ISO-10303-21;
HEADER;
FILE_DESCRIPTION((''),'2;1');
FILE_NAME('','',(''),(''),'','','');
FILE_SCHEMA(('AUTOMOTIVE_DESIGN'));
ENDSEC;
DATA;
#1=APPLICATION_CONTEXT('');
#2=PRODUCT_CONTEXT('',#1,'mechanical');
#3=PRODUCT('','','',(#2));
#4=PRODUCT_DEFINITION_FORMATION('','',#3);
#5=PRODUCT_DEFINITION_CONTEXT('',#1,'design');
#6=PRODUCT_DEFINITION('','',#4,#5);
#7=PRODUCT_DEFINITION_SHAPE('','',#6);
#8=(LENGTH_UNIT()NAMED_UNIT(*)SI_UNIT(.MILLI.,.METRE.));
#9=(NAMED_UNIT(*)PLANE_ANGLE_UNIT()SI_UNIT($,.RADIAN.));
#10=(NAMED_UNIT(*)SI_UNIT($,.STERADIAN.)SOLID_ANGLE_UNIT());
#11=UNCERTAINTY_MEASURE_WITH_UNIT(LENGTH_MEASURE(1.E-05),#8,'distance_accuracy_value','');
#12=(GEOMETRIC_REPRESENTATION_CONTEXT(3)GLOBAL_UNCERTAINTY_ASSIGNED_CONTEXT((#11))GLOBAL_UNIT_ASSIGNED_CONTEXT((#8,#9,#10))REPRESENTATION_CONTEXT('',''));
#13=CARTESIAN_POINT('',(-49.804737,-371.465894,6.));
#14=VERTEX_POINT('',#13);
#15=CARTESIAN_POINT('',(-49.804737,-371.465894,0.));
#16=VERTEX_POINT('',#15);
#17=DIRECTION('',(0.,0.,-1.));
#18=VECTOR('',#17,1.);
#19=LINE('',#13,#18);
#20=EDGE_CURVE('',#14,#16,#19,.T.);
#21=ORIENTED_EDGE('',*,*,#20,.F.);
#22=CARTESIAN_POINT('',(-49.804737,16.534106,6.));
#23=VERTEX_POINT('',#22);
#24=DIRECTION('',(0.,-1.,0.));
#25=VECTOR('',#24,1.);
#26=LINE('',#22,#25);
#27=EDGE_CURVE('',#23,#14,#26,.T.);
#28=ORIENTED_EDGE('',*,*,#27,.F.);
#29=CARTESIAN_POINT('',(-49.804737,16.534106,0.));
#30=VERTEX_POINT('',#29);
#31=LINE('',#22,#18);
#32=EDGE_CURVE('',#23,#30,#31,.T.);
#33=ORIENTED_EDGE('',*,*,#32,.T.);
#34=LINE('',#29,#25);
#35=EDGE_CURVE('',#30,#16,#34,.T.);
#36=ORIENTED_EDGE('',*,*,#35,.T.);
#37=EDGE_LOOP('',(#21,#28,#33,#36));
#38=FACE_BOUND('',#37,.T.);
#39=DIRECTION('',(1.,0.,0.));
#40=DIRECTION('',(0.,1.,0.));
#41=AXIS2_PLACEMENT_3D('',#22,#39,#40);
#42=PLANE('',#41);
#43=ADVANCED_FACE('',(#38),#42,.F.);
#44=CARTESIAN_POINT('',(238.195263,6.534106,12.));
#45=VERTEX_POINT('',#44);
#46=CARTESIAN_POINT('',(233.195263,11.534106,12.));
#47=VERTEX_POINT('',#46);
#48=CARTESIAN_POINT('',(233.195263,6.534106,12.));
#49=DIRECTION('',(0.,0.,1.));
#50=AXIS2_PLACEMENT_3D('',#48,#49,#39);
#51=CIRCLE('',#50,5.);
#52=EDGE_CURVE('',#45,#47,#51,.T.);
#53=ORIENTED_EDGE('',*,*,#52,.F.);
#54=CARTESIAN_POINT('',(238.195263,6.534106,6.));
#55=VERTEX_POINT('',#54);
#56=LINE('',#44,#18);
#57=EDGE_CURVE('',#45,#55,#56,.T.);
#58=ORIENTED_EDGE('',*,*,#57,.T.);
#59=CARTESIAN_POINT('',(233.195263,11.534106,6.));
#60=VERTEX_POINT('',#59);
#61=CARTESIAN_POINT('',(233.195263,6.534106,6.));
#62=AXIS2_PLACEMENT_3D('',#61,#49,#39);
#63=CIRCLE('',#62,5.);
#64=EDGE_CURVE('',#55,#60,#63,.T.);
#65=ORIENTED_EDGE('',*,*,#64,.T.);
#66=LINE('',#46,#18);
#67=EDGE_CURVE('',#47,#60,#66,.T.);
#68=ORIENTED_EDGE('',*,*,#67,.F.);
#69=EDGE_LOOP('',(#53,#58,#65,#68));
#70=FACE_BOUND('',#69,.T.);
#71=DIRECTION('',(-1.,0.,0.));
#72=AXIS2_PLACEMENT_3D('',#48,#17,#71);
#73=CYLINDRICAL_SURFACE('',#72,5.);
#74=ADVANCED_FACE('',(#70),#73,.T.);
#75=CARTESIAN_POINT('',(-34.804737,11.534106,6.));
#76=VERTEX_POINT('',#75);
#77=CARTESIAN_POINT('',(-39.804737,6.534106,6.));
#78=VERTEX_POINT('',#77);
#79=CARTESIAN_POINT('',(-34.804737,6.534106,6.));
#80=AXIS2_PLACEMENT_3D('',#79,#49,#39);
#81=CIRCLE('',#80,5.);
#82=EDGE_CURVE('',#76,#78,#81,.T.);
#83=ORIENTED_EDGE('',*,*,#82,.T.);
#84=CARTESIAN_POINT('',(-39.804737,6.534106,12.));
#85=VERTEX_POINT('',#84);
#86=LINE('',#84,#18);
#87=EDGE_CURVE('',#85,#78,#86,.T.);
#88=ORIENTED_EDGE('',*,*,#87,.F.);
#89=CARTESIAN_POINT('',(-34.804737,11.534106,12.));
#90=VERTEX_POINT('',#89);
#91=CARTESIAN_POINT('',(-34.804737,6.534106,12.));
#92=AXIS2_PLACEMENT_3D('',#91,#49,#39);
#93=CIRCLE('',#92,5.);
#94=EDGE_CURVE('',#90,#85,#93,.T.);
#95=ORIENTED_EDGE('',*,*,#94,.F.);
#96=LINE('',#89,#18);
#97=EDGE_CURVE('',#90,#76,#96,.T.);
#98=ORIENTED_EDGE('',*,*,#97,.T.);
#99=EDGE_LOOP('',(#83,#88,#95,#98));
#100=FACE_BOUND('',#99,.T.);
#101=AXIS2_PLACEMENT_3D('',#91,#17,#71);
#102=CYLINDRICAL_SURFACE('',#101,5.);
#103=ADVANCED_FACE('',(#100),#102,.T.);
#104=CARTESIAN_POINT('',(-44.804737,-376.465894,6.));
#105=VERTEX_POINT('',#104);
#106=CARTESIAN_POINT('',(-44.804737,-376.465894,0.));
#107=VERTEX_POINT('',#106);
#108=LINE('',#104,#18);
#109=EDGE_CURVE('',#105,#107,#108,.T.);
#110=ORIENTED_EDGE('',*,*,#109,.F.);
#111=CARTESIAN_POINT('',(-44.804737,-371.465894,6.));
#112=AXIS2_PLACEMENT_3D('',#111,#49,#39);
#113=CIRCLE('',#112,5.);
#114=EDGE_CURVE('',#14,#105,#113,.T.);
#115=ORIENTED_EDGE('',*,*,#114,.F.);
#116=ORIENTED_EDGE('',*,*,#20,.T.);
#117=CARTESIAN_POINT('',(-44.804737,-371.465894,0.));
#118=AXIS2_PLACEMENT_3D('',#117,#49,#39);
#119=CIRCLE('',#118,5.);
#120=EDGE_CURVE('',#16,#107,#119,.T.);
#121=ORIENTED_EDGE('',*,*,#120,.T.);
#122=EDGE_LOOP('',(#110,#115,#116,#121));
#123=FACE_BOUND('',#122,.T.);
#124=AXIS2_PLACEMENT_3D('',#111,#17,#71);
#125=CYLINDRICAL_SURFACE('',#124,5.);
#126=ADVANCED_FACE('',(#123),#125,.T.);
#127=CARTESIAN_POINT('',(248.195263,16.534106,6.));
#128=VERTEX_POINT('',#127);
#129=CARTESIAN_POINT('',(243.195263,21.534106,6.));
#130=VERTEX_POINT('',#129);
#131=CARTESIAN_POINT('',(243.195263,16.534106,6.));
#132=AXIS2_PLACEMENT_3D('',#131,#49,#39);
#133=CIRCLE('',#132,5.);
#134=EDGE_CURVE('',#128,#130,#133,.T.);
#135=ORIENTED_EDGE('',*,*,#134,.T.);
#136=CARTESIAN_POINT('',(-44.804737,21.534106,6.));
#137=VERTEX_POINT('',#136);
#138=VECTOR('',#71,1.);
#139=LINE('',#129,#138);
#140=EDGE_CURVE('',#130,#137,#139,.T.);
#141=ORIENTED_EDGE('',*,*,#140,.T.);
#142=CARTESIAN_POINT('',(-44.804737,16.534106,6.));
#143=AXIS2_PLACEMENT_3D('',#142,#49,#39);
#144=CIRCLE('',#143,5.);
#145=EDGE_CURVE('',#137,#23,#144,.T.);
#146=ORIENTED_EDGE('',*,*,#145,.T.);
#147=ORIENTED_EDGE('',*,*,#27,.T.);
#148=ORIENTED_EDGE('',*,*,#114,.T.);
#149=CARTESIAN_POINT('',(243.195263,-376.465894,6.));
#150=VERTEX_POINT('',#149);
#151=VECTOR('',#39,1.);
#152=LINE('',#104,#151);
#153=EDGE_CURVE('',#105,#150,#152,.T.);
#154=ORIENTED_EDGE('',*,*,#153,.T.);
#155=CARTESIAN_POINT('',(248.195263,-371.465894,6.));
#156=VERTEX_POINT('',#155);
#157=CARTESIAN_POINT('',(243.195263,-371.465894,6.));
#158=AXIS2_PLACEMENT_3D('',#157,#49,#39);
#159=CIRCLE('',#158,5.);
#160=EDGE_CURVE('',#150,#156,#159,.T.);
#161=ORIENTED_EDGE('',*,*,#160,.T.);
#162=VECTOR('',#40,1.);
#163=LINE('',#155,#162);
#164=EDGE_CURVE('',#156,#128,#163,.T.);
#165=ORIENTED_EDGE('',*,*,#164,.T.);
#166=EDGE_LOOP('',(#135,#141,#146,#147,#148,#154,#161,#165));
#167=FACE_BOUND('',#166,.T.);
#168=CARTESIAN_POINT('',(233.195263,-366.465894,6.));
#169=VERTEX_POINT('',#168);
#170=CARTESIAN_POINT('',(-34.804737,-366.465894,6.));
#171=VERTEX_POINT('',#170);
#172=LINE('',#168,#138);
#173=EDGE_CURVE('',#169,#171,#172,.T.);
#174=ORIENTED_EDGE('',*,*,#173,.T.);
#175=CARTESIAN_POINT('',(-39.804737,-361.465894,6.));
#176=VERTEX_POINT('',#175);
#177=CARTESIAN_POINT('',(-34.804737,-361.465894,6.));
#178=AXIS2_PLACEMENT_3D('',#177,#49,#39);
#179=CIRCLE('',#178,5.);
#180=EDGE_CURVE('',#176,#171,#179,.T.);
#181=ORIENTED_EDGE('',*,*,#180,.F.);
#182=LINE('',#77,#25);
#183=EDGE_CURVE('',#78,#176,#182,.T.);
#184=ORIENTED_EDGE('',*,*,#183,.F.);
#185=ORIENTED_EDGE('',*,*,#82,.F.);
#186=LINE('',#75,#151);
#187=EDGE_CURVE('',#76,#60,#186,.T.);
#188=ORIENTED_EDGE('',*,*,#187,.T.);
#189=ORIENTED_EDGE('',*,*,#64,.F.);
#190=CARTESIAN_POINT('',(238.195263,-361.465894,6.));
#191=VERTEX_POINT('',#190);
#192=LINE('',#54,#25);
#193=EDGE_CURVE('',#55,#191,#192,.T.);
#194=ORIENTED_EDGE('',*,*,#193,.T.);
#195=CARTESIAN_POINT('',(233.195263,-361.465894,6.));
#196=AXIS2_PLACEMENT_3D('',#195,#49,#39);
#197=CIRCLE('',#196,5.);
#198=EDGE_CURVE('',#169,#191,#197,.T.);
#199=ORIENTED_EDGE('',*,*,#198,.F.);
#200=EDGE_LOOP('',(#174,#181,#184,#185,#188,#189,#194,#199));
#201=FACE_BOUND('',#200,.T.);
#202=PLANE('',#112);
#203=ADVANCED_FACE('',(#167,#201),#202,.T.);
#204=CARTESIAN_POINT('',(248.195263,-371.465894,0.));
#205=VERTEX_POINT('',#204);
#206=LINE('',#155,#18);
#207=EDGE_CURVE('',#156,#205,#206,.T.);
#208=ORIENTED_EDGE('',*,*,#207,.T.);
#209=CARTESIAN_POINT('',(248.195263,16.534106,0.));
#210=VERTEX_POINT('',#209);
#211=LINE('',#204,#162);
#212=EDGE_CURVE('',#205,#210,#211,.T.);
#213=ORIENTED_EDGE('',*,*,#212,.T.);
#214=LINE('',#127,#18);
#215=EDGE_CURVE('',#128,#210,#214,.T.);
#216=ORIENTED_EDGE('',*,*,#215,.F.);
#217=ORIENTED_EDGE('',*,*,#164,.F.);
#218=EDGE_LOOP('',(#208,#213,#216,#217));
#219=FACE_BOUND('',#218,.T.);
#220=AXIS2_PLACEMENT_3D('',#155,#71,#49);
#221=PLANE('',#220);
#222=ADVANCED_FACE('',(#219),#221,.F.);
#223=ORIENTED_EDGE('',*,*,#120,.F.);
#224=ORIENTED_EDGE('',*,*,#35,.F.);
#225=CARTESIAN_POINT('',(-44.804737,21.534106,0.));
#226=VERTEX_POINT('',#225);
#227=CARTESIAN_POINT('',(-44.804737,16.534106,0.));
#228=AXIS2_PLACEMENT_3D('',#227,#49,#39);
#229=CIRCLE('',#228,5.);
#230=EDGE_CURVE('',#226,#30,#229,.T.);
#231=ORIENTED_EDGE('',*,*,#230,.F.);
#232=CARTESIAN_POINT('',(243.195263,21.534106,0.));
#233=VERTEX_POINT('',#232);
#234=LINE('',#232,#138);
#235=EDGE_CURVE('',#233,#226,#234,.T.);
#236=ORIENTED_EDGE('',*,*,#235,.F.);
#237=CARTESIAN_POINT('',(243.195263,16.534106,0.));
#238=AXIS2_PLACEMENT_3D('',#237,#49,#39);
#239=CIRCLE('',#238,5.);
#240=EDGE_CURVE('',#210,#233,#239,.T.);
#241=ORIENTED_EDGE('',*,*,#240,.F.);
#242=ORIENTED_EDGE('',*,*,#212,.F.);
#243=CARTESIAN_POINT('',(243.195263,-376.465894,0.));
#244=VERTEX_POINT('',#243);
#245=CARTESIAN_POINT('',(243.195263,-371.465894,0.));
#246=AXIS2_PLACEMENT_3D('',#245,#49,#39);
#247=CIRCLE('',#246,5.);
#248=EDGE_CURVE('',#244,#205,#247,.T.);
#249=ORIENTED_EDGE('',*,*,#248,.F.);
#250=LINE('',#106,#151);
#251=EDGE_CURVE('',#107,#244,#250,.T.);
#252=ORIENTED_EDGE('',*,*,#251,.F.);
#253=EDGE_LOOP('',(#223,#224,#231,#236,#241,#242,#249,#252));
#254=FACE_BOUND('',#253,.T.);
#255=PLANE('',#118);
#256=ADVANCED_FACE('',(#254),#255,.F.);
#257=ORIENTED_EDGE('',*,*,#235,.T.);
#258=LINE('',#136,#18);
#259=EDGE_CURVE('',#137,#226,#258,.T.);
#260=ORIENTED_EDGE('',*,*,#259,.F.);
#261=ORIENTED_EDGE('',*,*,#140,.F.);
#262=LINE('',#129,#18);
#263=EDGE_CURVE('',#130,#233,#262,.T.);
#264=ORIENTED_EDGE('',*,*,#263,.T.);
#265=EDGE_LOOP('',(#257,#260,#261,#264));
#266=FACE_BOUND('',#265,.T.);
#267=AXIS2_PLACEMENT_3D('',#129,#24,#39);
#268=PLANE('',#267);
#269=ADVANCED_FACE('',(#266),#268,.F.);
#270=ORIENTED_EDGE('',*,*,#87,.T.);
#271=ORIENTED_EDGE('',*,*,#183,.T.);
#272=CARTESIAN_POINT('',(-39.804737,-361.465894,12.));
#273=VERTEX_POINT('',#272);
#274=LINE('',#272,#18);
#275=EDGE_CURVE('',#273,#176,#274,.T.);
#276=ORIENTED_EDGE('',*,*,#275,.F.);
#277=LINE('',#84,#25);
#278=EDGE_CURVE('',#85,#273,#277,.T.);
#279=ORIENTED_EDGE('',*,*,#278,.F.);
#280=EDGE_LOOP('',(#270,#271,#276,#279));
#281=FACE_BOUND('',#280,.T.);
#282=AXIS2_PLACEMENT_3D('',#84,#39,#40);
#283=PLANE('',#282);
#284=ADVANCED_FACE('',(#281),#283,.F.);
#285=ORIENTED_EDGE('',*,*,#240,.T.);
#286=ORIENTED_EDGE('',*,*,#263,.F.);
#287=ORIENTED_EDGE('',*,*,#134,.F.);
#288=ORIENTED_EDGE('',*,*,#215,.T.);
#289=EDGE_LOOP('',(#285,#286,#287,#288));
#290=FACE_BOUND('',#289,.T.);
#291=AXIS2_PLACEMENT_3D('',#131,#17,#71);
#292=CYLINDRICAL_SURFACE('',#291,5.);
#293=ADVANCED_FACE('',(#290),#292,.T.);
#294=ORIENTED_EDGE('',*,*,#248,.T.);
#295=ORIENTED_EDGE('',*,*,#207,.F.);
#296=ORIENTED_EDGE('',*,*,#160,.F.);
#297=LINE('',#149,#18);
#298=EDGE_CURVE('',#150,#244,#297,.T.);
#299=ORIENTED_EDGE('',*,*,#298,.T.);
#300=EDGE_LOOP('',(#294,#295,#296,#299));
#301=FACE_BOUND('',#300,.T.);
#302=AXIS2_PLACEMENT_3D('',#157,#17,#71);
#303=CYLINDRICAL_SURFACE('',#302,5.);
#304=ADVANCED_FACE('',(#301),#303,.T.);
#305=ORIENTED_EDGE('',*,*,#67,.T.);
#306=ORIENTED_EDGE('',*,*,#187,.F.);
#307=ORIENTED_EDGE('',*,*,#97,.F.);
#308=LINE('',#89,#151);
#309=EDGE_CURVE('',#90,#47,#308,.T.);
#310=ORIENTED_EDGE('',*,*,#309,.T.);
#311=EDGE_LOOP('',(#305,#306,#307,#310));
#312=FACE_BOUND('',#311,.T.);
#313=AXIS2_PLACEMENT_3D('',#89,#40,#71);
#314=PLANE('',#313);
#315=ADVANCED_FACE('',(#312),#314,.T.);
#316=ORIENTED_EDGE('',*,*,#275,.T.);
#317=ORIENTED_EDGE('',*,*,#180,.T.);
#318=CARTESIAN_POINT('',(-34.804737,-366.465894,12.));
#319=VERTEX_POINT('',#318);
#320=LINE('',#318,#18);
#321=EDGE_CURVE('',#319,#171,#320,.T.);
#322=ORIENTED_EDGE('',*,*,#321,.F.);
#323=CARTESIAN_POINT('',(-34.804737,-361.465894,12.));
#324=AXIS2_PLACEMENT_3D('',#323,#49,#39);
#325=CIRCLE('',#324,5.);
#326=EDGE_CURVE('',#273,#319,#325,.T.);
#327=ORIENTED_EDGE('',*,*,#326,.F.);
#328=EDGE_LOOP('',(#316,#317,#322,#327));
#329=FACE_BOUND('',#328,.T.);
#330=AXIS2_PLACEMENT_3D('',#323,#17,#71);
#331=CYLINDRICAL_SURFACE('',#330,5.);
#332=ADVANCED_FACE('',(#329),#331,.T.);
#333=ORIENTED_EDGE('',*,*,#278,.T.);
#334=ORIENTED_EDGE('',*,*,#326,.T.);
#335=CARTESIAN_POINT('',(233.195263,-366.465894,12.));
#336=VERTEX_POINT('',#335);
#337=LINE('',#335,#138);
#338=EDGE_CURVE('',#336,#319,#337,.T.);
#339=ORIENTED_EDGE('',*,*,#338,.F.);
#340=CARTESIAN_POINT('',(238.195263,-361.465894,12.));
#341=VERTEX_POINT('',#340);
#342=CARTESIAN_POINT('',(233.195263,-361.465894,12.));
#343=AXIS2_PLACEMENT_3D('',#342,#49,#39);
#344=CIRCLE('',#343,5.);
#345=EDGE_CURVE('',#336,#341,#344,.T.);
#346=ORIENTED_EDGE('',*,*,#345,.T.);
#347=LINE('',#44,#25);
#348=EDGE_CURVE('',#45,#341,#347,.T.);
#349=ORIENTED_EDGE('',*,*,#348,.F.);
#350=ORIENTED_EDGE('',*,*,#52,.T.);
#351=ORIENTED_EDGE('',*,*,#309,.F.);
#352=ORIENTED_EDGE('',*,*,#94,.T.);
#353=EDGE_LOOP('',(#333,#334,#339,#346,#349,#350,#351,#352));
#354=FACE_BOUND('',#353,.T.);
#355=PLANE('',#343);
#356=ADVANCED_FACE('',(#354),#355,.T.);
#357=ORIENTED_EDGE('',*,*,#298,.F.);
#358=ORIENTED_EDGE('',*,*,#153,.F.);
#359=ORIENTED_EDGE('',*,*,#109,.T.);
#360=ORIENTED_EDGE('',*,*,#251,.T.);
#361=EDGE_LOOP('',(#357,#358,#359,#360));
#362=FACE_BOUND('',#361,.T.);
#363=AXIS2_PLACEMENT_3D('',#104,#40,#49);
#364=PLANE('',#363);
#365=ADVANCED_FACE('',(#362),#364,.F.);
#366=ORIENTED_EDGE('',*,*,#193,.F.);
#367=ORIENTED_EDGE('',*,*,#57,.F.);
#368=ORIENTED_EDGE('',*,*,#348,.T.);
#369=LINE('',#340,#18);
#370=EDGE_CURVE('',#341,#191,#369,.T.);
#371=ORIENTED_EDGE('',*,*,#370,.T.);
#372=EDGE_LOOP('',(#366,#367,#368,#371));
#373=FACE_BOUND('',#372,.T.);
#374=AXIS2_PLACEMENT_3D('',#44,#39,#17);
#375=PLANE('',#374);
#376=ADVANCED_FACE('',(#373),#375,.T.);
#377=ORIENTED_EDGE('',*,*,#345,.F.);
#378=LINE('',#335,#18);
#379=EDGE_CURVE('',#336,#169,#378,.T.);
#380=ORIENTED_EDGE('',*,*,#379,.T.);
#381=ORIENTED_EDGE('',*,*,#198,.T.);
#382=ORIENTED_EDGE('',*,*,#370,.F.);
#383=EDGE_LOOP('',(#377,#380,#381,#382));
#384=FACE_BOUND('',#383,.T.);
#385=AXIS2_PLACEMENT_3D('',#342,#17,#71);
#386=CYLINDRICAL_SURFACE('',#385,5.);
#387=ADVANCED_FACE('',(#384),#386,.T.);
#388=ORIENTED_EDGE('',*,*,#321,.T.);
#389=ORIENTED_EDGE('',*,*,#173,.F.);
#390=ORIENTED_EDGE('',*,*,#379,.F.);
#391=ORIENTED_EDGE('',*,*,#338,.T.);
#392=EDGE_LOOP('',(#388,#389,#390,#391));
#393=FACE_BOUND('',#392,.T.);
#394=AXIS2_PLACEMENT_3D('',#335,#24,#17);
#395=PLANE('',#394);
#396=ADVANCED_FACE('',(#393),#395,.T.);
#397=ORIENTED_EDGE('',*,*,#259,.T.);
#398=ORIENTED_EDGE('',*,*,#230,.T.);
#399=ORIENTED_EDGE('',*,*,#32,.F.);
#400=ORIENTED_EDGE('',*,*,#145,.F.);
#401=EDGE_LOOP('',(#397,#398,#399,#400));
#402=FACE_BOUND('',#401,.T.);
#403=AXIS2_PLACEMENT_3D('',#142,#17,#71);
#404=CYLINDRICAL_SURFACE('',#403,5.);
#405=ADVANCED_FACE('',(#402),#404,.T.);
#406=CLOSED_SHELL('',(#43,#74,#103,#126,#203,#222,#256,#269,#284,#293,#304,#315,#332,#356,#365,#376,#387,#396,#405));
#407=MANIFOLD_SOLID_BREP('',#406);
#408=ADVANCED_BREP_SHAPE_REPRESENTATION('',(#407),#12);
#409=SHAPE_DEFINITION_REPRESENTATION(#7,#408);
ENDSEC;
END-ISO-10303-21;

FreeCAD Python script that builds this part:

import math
import FreeCAD as App
import Part
import Sketcher

doc = App.newDocument("Part")
body = doc.addObject("PartDesign::Body", "Body")

# Sketch on XY plane
sketch1 = doc.addObject("Sketcher::SketchObject", "Sketch")
body.addObject(sketch1)
sketch1.AttachmentSupport = (doc.XY_Plane, [""])
sketch1.MapMode = "FlatFace"
sketch1.addGeometry([
    Part.LineSegment(App.Vector(-50, 17, 0), App.Vector(-50, -371, 0)),  # 0
    Part.ArcOfCircle(Part.Circle(App.Vector(-45, -371, 0), App.Vector(0, 0, 1), 5), math.radians(180), math.radians(270)),  # 1
    Part.LineSegment(App.Vector(-45, -376, 0), App.Vector(243, -376, 0)),  # 2
    Part.ArcOfCircle(Part.Circle(App.Vector(243, -371, 0), App.Vector(0, 0, 1), 5), math.radians(-90), math.radians(0)),  # 3
    Part.LineSegment(App.Vector(248, -371, 0), App.Vector(248, 17, 0)),  # 4
    Part.ArcOfCircle(Part.Circle(App.Vector(243, 17, 0), App.Vector(0, 0, 1), 5), math.radians(0), math.radians(90)),  # 5
    Part.LineSegment(App.Vector(243, 22, 0), App.Vector(-45, 22, 0)),  # 6
    Part.ArcOfCircle(Part.Circle(App.Vector(-45, 17, 0), App.Vector(0, 0, 1), 5), math.radians(90), math.radians(180)),  # 7
], False)
sketch1.addConstraint([
    Sketcher.Constraint("Tangent", 0, 2, 1, 1),
    Sketcher.Constraint("Tangent", 1, 2, 2, 1),
    Sketcher.Constraint("Tangent", 2, 2, 3, 1),
    Sketcher.Constraint("Tangent", 3, 2, 4, 1),
    Sketcher.Constraint("Tangent", 4, 2, 5, 1),
    Sketcher.Constraint("Tangent", 5, 2, 6, 1),
    Sketcher.Constraint("Tangent", 6, 2, 7, 1),
    Sketcher.Constraint("Tangent", 7, 2, 0, 1),
    Sketcher.Constraint("Vertical", 0),
    Sketcher.Constraint("Horizontal", 2),
    Sketcher.Constraint("Vertical", 4),
    Sketcher.Constraint("Horizontal", 6),
    Sketcher.Constraint("Equal", 1, 3),
    Sketcher.Constraint("Equal", 3, 5),
    Sketcher.Constraint("Equal", 5, 7),
    Sketcher.Constraint("Radius", 1, 5.0),
    Sketcher.Constraint("DistanceX", 2, 1, 2, 2, 288.0),
    Sketcher.Constraint("DistanceY", 0, 2, 0, 1, 388.0),
    Sketcher.Constraint("DistanceX", 1, 3, -1, 1, 44.804737),
    Sketcher.Constraint("DistanceY", 1, 3, -1, 1, 371.465894),
])
pad1 = doc.addObject("PartDesign::Pad", "Pad")
body.addObject(pad1)
pad1.Profile = sketch1
pad1.Length = 6

# Sketch on XY plane
sketch2 = doc.addObject("Sketcher::SketchObject", "Sketch001")
body.addObject(sketch2)
sketch2.AttachmentSupport = (doc.XY_Plane, [""])
sketch2.MapMode = "FlatFace"
sketch2.AttachmentOffset = App.Placement(App.Vector(0, 0, 6), App.Rotation())
sketch2.addGeometry([
    Part.LineSegment(App.Vector(-40, 7, 0), App.Vector(-40, -361, 0)),  # 0
    Part.ArcOfCircle(Part.Circle(App.Vector(-35, -361, 0), App.Vector(0, 0, 1), 5), math.radians(180), math.radians(270)),  # 1
    Part.LineSegment(App.Vector(-35, -366, 0), App.Vector(233, -366, 0)),  # 2
    Part.ArcOfCircle(Part.Circle(App.Vector(233, -361, 0), App.Vector(0, 0, 1), 5), math.radians(-90), math.radians(0)),  # 3
    Part.LineSegment(App.Vector(238, -361, 0), App.Vector(238, 7, 0)),  # 4
    Part.ArcOfCircle(Part.Circle(App.Vector(233, 7, 0), App.Vector(0, 0, 1), 5), math.radians(0), math.radians(90)),  # 5
    Part.LineSegment(App.Vector(233, 12, 0), App.Vector(-35, 12, 0)),  # 6
    Part.ArcOfCircle(Part.Circle(App.Vector(-35, 7, 0), App.Vector(0, 0, 1), 5), math.radians(90), math.radians(180)),  # 7
], False)
sketch2.addConstraint([
    Sketcher.Constraint("Tangent", 0, 2, 1, 1),
    Sketcher.Constraint("Tangent", 1, 2, 2, 1),
    Sketcher.Constraint("Tangent", 2, 2, 3, 1),
    Sketcher.Constraint("Tangent", 3, 2, 4, 1),
    Sketcher.Constraint("Tangent", 4, 2, 5, 1),
    Sketcher.Constraint("Tangent", 5, 2, 6, 1),
    Sketcher.Constraint("Tangent", 6, 2, 7, 1),
    Sketcher.Constraint("Tangent", 7, 2, 0, 1),
    Sketcher.Constraint("Vertical", 0),
    Sketcher.Constraint("Horizontal", 2),
    Sketcher.Constraint("Vertical", 4),
    Sketcher.Constraint("Horizontal", 6),
    Sketcher.Constraint("Equal", 1, 3),
    Sketcher.Constraint("Equal", 3, 5),
    Sketcher.Constraint("Equal", 5, 7),
    Sketcher.Constraint("Radius", 1, 5.0),
    Sketcher.Constraint("DistanceX", 2, 1, 2, 2, 268.0),
    Sketcher.Constraint("DistanceY", 0, 2, 0, 1, 368.0),
    Sketcher.Constraint("DistanceX", 1, 3, -1, 1, 34.804737),
    Sketcher.Constraint("DistanceY", 1, 3, -1, 1, 361.465894),
])
pad2 = doc.addObject("PartDesign::Pad", "Pad001")
body.addObject(pad2)
pad2.Profile = sketch2
pad2.Length = 6

doc.recompute()
